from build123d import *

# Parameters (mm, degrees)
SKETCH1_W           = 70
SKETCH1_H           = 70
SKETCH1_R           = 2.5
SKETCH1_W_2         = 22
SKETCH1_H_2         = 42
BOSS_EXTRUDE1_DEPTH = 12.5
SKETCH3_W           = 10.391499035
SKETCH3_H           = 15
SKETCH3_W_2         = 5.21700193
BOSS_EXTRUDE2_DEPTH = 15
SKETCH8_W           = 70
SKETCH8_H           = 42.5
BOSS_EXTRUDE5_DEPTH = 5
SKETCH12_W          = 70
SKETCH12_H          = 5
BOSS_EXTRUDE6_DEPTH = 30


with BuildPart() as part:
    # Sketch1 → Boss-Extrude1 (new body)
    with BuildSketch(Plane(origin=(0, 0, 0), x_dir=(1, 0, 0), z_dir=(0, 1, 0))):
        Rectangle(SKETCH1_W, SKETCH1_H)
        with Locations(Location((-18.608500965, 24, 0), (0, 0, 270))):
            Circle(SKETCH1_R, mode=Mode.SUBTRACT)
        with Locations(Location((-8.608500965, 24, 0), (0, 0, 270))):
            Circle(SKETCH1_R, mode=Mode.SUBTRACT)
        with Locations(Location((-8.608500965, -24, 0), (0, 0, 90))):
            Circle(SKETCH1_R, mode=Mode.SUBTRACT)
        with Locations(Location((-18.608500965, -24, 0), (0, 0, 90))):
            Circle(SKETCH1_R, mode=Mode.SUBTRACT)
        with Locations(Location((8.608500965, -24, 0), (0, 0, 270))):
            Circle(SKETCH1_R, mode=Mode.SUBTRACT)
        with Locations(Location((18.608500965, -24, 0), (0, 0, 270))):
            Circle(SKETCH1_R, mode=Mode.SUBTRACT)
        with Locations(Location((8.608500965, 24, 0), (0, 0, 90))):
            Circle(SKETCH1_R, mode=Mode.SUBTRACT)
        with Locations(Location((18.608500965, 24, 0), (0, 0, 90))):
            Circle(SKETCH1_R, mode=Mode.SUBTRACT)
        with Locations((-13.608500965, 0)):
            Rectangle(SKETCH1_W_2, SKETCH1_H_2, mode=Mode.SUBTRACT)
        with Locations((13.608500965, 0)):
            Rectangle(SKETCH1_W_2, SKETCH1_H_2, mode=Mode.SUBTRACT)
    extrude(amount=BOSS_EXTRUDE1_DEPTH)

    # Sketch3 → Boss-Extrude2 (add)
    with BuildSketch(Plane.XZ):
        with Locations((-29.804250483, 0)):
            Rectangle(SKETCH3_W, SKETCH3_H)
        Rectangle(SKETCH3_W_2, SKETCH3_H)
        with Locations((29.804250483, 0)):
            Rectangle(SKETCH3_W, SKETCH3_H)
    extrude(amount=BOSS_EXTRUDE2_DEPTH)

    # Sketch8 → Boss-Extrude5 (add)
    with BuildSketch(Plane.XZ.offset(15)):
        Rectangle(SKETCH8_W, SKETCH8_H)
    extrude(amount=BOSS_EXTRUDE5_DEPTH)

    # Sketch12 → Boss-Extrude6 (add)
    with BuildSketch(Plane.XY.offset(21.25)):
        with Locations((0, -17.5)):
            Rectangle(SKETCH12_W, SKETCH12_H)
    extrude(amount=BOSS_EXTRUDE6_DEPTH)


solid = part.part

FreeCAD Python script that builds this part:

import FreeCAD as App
import Part
import Sketcher


def add_polygon(sketch, points):
    """Adds a closed chain of lines whose ends are joined by coincident constraints."""
    first, n = sketch.GeometryCount, len(points)
    for a, b in zip(points, points[1:] + points[:1]):
        sketch.addGeometry(Part.LineSegment(App.Vector(*a, 0), App.Vector(*b, 0)), False)
    for i in range(n):
        sketch.addConstraint(Sketcher.Constraint("Coincident", first + i, 2, first + (i + 1) % n, 1))

doc = App.newDocument("Part")
body = doc.addObject("PartDesign::Body", "Body")

# Sketch on XZ plane
sketch1 = body.newObject("Sketcher::SketchObject", "Sketch")
sketch1.AttachmentSupport = (doc.getObject("XZ_Plane"), [""])
sketch1.MapMode = "FlatFace"
add_polygon(sketch1, [(-35, -35), (-35, 35), (35, 35), (35, -35)])  # lines 0-3
sketch1.addGeometry(Part.Circle(App.Vector(-18.6, 24, 0), App.Vector(0, 0, 1), 2.5), False)  # 4
sketch1.addGeometry(Part.Circle(App.Vector(-8.6, 24, 0), App.Vector(0, 0, 1), 2.5), False)  # 5
sketch1.addGeometry(Part.Circle(App.Vector(8.6, 24, 0), App.Vector(0, 0, 1), 2.5), False)  # 6
sketch1.addGeometry(Part.Circle(App.Vector(18.6, 24, 0), App.Vector(0, 0, 1), 2.5), False)  # 7
add_polygon(sketch1, [(-2.6, 21), (-24.6, 21), (-24.6, -21), (-2.6, -21)])  # lines 8-11
sketch1.addGeometry(Part.Circle(App.Vector(-18.6, -24, 0), App.Vector(0, 0, 1), 2.5), False)  # 12
sketch1.addGeometry(Part.Circle(App.Vector(-8.6, -24, 0), App.Vector(0, 0, 1), 2.5), False)  # 13
add_polygon(sketch1, [(24.6, 21), (2.6, 21), (2.6, -21), (24.6, -21)])  # lines 14-17
sketch1.addGeometry(Part.Circle(App.Vector(8.6, -24, 0), App.Vector(0, 0, 1), 2.5), False)  # 18
sketch1.addGeometry(Part.Circle(App.Vector(18.6, -24, 0), App.Vector(0, 0, 1), 2.5), False)  # 19
sketch1.addConstraint([
    Sketcher.Constraint("Vertical", 0),
    Sketcher.Constraint("Horizontal", 1),
    Sketcher.Constraint("Vertical", 2),
    Sketcher.Constraint("Horizontal", 3),
    Sketcher.Constraint("Horizontal", 8),
    Sketcher.Constraint("Vertical", 9),
    Sketcher.Constraint("Horizontal", 10),
    Sketcher.Constraint("Vertical", 11),
    Sketcher.Constraint("Horizontal", 14),
    Sketcher.Constraint("Vertical", 15),
    Sketcher.Constraint("Horizontal", 16),
    Sketcher.Constraint("Vertical", 17),
    Sketcher.Constraint("Equal", 4, 5),
    Sketcher.Constraint("Equal", 5, 6),
    Sketcher.Constraint("Equal", 6, 7),
    Sketcher.Constraint("Equal", 7, 12),
    Sketcher.Constraint("Equal", 12, 13),
    Sketcher.Constraint("Equal", 13, 18),
    Sketcher.Constraint("Equal", 18, 19),
    Sketcher.Constraint("Symmetric", 7, 3, 12, 3, -1, 1),
    Sketcher.Constraint("Symmetric", 6, 3, 13, 3, -1, 1),
    Sketcher.Constraint("Symmetric", 5, 3, 18, 3, -1, 1),
    Sketcher.Constraint("Symmetric", 4, 3, 19, 3, -1, 1),
    Sketcher.Constraint("Symmetric", 0, 2, 2, 2, -1, 1),
    Sketcher.Constraint("Symmetric", 10, 2, 14, 2, -1, 1),
    Sketcher.Constraint("Symmetric", 8, 2, 16, 2, -1, 1),
    Sketcher.Constraint("Symmetric", 5, 3, 6, 3, -2),
    Sketcher.Constraint("Symmetric", 4, 3, 7, 3, -2),
    Sketcher.Constraint("Horizontal", 4, 3, 5, 3),
    Sketcher.Constraint("Horizontal", 11, 2, 14, 2),
    Sketcher.Constraint("Equal", 3, 0),
    Sketcher.Constraint("Diameter", 4, 5.0),
    Sketcher.Constraint("DistanceX", 1, 1, 1, 2, 70.0),
    Sketcher.Constraint("DistanceX", 8, 2, 8, 1, 22.0),
    Sketcher.Constraint("DistanceY", 9, 2, 9, 1, 42.0),
    Sketcher.Constraint("DistanceY", -1, 1, 4, 3, 24.0),
    Sketcher.Constraint("DistanceX", 4, 3, 5, 3, 10.0),
    Sketcher.Constraint("DistanceX", 8, 2, 4, 3, 6.0),
    Sketcher.Constraint("DistanceX", 5, 3, 6, 3, 17.217002),
])
pad1 = body.newObject("PartDesign::Pad", "Pad")
pad1.Profile = sketch1
pad1.Length = 12.5
pad1.Reversed = True

# Sketch on XZ plane
sketch2 = body.newObject("Sketcher::SketchObject", "Sketch001")
sketch2.AttachmentSupport = (doc.getObject("XZ_Plane"), [""])
sketch2.MapMode = "FlatFace"
add_polygon(sketch2, [(-35, 8), (-35, -8), (-25, -8), (-25, 8)])  # lines 0-3
add_polygon(sketch2, [(-3, 8), (-3, -8), (3, -8), (3, 8)])  # lines 4-7
add_polygon(sketch2, [(25, 8), (25, -8), (35, -8), (35, 8)])  # lines 8-11
sketch2.addConstraint([
    Sketcher.Constraint("Vertical", 0),
    Sketcher.Constraint("Horizontal", 1),
    Sketcher.Constraint("Vertical", 2),
    Sketcher.Constraint("Horizontal", 3),
    Sketcher.Constraint("Vertical", 4),
    Sketcher.Constraint("Horizontal", 5),
    Sketcher.Constraint("Vertical", 6),
    Sketcher.Constraint("Horizontal", 7),
    Sketcher.Constraint("Vertical", 8),
    Sketcher.Constraint("Horizontal", 9),
    Sketcher.Constraint("Vertical", 10),
    Sketcher.Constraint("Horizontal", 11),
    Sketcher.Constraint("Symmetric", 4, 2, 6, 2, -1, 1),
    Sketcher.Constraint("Symmetric", 2, 2, 8, 2, -1, 1),
    Sketcher.Constraint("Symmetric", 0, 2, 10, 2, -1, 1),
    Sketcher.Constraint("Horizontal", 1, 2, 4, 2),
    Sketcher.Constraint("Horizontal", 3, 2, 6, 2),
    Sketcher.Constraint("DistanceY", 0, 2, 0, 1, 15.0),
    Sketcher.Constraint("DistanceX", 0, 2, -1, 1, 35.0),
    Sketcher.Constraint("DistanceX", 1, 2, 4, 2, 22.0),
    Sketcher.Constraint("DistanceX", 5, 1, 5, 2, 5.217002),
])
pad2 = body.newObject("PartDesign::Pad", "Pad001")
pad2.Profile = sketch2
pad2.Length = 15

# Sketch on XZ plane
sketch3 = body.newObject("Sketcher::SketchObject", "Sketch002")
sketch3.AttachmentSupport = (doc.getObject("XZ_Plane"), [""])
sketch3.MapMode = "FlatFace"
sketch3.AttachmentOffset = App.Placement(App.Vector(0, 0, 15), App.Rotation())
add_polygon(sketch3, [(-35, 21), (-35, -21), (35, -21), (35, 21)])  # lines 0-3
sketch3.addConstraint([
    Sketcher.Constraint("Vertical", 0),
    Sketcher.Constraint("Horizontal", 1),
    Sketcher.Constraint("Vertical", 2),
    Sketcher.Constraint("Horizontal", 3),
    Sketcher.Constraint("Symmetric", 0, 2, 2, 2, -1, 1),
    Sketcher.Constraint("DistanceX", 1, 1, 1, 2, 70.0),
    Sketcher.Constraint("DistanceY", 0, 2, 0, 1, 42.5),
])
pad3 = body.newObject("PartDesign::Pad", "Pad002")
pad3.Profile = sketch3
pad3.Length = 5

# Sketch on XY plane
sketch4 = body.newObject("Sketcher::SketchObject", "Sketch003")
sketch4.AttachmentSupport = (doc.getObject("XY_Plane"), [""])
sketch4.MapMode = "FlatFace"
sketch4.AttachmentOffset = App.Placement(App.Vector(0, 0, 21.25), App.Rotation())
add_polygon(sketch4, [(-35, -15), (-35, -20), (35, -20), (35, -15)])  # lines 0-3
sketch4.addConstraint([
    Sketcher.Constraint("Vertical", 0),
    Sketcher.Constraint("Horizontal", 1),
    Sketcher.Constraint("Vertical", 2),
    Sketcher.Constraint("Horizontal", 3),
    Sketcher.Constraint("DistanceX", 1, 1, 1, 2, 70.0),
    Sketcher.Constraint("DistanceY", 0, 2, 0, 1, 5.0),
    Sketcher.Constraint("DistanceX", 0, 2, -1, 1, 35.0),
    Sketcher.Constraint("DistanceY", 0, 2, -1, 1, 20.0),
])
pad4 = body.newObject("PartDesign::Pad", "Pad003")
pad4.Profile = sketch4
pad4.Length = 30

doc.recompute()
